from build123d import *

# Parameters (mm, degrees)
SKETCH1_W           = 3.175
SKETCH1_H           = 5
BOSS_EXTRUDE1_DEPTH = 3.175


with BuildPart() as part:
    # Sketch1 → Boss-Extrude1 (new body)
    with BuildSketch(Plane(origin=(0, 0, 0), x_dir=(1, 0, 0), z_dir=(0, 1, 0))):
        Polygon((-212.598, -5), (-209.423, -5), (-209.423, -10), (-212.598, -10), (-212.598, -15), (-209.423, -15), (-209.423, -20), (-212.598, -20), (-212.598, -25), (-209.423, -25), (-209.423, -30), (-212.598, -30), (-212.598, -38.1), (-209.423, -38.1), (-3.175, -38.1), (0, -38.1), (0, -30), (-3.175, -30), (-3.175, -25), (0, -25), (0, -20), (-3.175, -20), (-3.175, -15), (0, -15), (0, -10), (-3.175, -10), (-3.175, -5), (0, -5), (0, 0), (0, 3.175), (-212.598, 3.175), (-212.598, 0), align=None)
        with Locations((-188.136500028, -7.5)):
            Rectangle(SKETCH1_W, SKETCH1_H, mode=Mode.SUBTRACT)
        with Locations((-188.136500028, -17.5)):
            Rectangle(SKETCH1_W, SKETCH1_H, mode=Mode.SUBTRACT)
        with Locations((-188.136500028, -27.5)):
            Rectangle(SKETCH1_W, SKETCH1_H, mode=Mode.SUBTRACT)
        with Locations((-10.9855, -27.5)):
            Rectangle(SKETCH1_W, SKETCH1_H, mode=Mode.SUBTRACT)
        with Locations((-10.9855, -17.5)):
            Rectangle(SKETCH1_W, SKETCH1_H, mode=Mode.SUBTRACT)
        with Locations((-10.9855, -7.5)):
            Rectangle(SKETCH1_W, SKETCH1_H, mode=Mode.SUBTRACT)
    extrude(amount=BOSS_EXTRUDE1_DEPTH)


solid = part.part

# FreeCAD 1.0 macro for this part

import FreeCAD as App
import Part
import Sketcher

V = App.Vector

doc = App.newDocument("Part")
body = doc.addObject("PartDesign::Body", "Body")

# Sketch on XZ plane
sketch1 = body.newObject("Sketcher::SketchObject", "Sketch")
sketch1.AttachmentSupport = (doc.getObject("XZ_Plane"), [""])
sketch1.MapMode = "FlatFace"
sketch1.addGeometry([
    Part.LineSegment(V(-212.598, 5, 0), V(-209.423, 5, 0)),  # 0
    Part.LineSegment(V(-209.423, 5, 0), V(-209.423, 10, 0)),  # 1
    Part.LineSegment(V(-209.423, 10, 0), V(-212.598, 10, 0)),  # 2
    Part.LineSegment(V(-212.598, 10, 0), V(-212.598, 15, 0)),  # 3
    Part.LineSegment(V(-212.598, 15, 0), V(-209.423, 15, 0)),  # 4
    Part.LineSegment(V(-209.423, 15, 0), V(-209.423, 20, 0)),  # 5
    Part.LineSegment(V(-209.423, 20, 0), V(-212.598, 20, 0)),  # 6
    Part.LineSegment(V(-212.598, 20, 0), V(-212.598, 25, 0)),  # 7
    Part.LineSegment(V(-212.598, 25, 0), V(-209.423, 25, 0)),  # 8
    Part.LineSegment(V(-209.423, 25, 0), V(-209.423, 30, 0)),  # 9
    Part.LineSegment(V(-209.423, 30, 0), V(-212.598, 30, 0)),  # 10
    Part.LineSegment(V(-212.598, 30, 0), V(-212.598, 38.1, 0)),  # 11
    Part.LineSegment(V(-212.598, 38.1, 0), V(0, 38.1, 0)),  # 12
    Part.LineSegment(V(0, 38.1, 0), V(0, 30, 0)),  # 13
    Part.LineSegment(V(0, 30, 0), V(-3.175, 30, 0)),  # 14
    Part.LineSegment(V(-3.175, 30, 0), V(-3.175, 25, 0)),  # 15
    Part.LineSegment(V(-3.175, 25, 0), V(0, 25, 0)),  # 16
    Part.LineSegment(V(0, 25, 0), V(0, 20, 0)),  # 17
    Part.LineSegment(V(0, 20, 0), V(-3.175, 20, 0)),  # 18
    Part.LineSegment(V(-3.175, 20, 0), V(-3.175, 15, 0)),  # 19
    Part.LineSegment(V(-3.175, 15, 0), V(0, 15, 0)),  # 20
    Part.LineSegment(V(0, 15, 0), V(0, 10, 0)),  # 21
    Part.LineSegment(V(0, 10, 0), V(-3.175, 10, 0)),  # 22
    Part.LineSegment(V(-3.175, 10, 0), V(-3.175, 5, 0)),  # 23
    Part.LineSegment(V(-3.175, 5, 0), V(0, 5, 0)),  # 24
    Part.LineSegment(V(0, 5, 0), V(0, -3.175, 0)),  # 25
    Part.LineSegment(V(0, -3.175, 0), V(-212.598, -3.175, 0)),  # 26
    Part.LineSegment(V(-212.598, -3.175, 0), V(-212.598, 5, 0)),  # 27
    Part.LineSegment(V(-186.549, 30, 0), V(-189.724, 30, 0)),  # 28
    Part.LineSegment(V(-189.724, 30, 0), V(-189.724, 25, 0)),  # 29
    Part.LineSegment(V(-189.724, 25, 0), V(-186.549, 25, 0)),  # 30
    Part.LineSegment(V(-186.549, 25, 0), V(-186.549, 30, 0)),  # 31
    Part.LineSegment(V(-9.398, 30, 0), V(-12.573, 30, 0)),  # 32
    Part.LineSegment(V(-12.573, 30, 0), V(-12.573, 25, 0)),  # 33
    Part.LineSegment(V(-12.573, 25, 0), V(-9.398, 25, 0)),  # 34
    Part.LineSegment(V(-9.398, 25, 0), V(-9.398, 30, 0)),  # 35
    Part.LineSegment(V(-186.549, 20, 0), V(-189.724, 20, 0)),  # 36
    Part.LineSegment(V(-189.724, 20, 0), V(-189.724, 15, 0)),  # 37
    Part.LineSegment(V(-189.724, 15, 0), V(-186.549, 15, 0)),  # 38
    Part.LineSegment(V(-186.549, 15, 0), V(-186.549, 20, 0)),  # 39
    Part.LineSegment(V(-186.549, 10, 0), V(-189.724, 10, 0)),  # 40
    Part.LineSegment(V(-189.724, 10, 0), V(-189.724, 5, 0)),  # 41
    Part.LineSegment(V(-189.724, 5, 0), V(-186.549, 5, 0)),  # 42
    Part.LineSegment(V(-186.549, 5, 0), V(-186.549, 10, 0)),  # 43
    Part.LineSegment(V(-9.398, 20, 0), V(-12.573, 20, 0)),  # 44
    Part.LineSegment(V(-12.573, 20, 0), V(-12.573, 15, 0)),  # 45
    Part.LineSegment(V(-12.573, 15, 0), V(-9.398, 15, 0)),  # 46
    Part.LineSegment(V(-9.398, 15, 0), V(-9.398, 20, 0)),  # 47
    Part.LineSegment(V(-9.398, 10, 0), V(-12.573, 10, 0)),  # 48
    Part.LineSegment(V(-12.573, 10, 0), V(-12.573, 5, 0)),  # 49
    Part.LineSegment(V(-12.573, 5, 0), V(-9.398, 5, 0)),  # 50
    Part.LineSegment(V(-9.398, 5, 0), V(-9.398, 10, 0)),  # 51
], False)
sketch1.addConstraint([
    Sketcher.Constraint("Coincident", 0, 2, 1, 1),
    Sketcher.Constraint("Coincident", 1, 2, 2, 1),
    Sketcher.Constraint("Coincident", 2, 2, 3, 1),
    Sketcher.Constraint("Coincident", 3, 2, 4, 1),
    Sketcher.Constraint("Coincident", 4, 2, 5, 1),
    Sketcher.Constraint("Coincident", 5, 2, 6, 1),
    Sketcher.Constraint("Coincident", 6, 2, 7, 1),
    Sketcher.Constraint("Coincident", 7, 2, 8, 1),
    Sketcher.Constraint("Coincident", 8, 2, 9, 1),
    Sketcher.Constraint("Coincident", 9, 2, 10, 1),
    Sketcher.Constraint("Coincident", 10, 2, 11, 1),
    Sketcher.Constraint("Coincident", 11, 2, 12, 1),
    Sketcher.Constraint("Coincident", 12, 2, 13, 1),
    Sketcher.Constraint("Coincident", 13, 2, 14, 1),
    Sketcher.Constraint("Coincident", 14, 2, 15, 1),
    Sketcher.Constraint("Coincident", 15, 2, 16, 1),
    Sketcher.Constraint("Coincident", 16, 2, 17, 1),
    Sketcher.Constraint("Coincident", 17, 2, 18, 1),
    Sketcher.Constraint("Coincident", 18, 2, 19, 1),
    Sketcher.Constraint("Coincident", 19, 2, 20, 1),
    Sketcher.Constraint("Coincident", 20, 2, 21, 1),
    Sketcher.Constraint("Coincident", 21, 2, 22, 1),
    Sketcher.Constraint("Coincident", 22, 2, 23, 1),
    Sketcher.Constraint("Coincident", 23, 2, 24, 1),
    Sketcher.Constraint("Coincident", 24, 2, 25, 1),
    Sketcher.Constraint("Coincident", 25, 2, 26, 1),
    Sketcher.Constraint("Coincident", 26, 2, 27, 1),
    Sketcher.Constraint("Coincident", 27, 2, 0, 1),
    Sketcher.Constraint("Coincident", 28, 2, 29, 1),
    Sketcher.Constraint("Coincident", 29, 2, 30, 1),
    Sketcher.Constraint("Coincident", 30, 2, 31, 1),
    Sketcher.Constraint("Coincident", 31, 2, 28, 1),
    Sketcher.Constraint("Coincident", 32, 2, 33, 1),
    Sketcher.Constraint("Coincident", 33, 2, 34, 1),
    Sketcher.Constraint("Coincident", 34, 2, 35, 1),
    Sketcher.Constraint("Coincident", 35, 2, 32, 1),
    Sketcher.Constraint("Coincident", 36, 2, 37, 1),
    Sketcher.Constraint("Coincident", 37, 2, 38, 1),
    Sketcher.Constraint("Coincident", 38, 2, 39, 1),
    Sketcher.Constraint("Coincident", 39, 2, 36, 1),
    Sketcher.Constraint("Coincident", 40, 2, 41, 1),
    Sketcher.Constraint("Coincident", 41, 2, 42, 1),
    Sketcher.Constraint("Coincident", 42, 2, 43, 1),
    Sketcher.Constraint("Coincident", 43, 2, 40, 1),
    Sketcher.Constraint("Coincident", 44, 2, 45, 1),
    Sketcher.Constraint("Coincident", 45, 2, 46, 1),
    Sketcher.Constraint("Coincident", 46, 2, 47, 1),
    Sketcher.Constraint("Coincident", 47, 2, 44, 1),
    Sketcher.Constraint("Coincident", 48, 2, 49, 1),
    Sketcher.Constraint("Coincident", 49, 2, 50, 1),
    Sketcher.Constraint("Coincident", 50, 2, 51, 1),
    Sketcher.Constraint("Coincident", 51, 2, 48, 1),
    Sketcher.Constraint("Horizontal", 0),
    Sketcher.Constraint("Vertical", 1),
    Sketcher.Constraint("Horizontal", 2),
    Sketcher.Constraint("Vertical", 3),
    Sketcher.Constraint("Horizontal", 4),
    Sketcher.Constraint("Vertical", 5),
    Sketcher.Constraint("Horizontal", 6),
    Sketcher.Constraint("Vertical", 7),
    Sketcher.Constraint("Horizontal", 8),
    Sketcher.Constraint("Vertical", 9),
    Sketcher.Constraint("Horizontal", 10),
    Sketcher.Constraint("Vertical", 11),
    Sketcher.Constraint("Horizontal", 12),
    Sketcher.Constraint("Vertical", 13),
    Sketcher.Constraint("Horizontal", 14),
    Sketcher.Constraint("Vertical", 15),
    Sketcher.Constraint("Horizontal", 16),
    Sketcher.Constraint("Vertical", 17),
    Sketcher.Constraint("Horizontal", 18),
    Sketcher.Constraint("Vertical", 19),
    Sketcher.Constraint("Horizontal", 20),
    Sketcher.Constraint("Vertical", 21),
    Sketcher.Constraint("Horizontal", 22),
    Sketcher.Constraint("Vertical", 23),
    Sketcher.Constraint("Horizontal", 24),
    Sketcher.Constraint("Vertical", 25),
    Sketcher.Constraint("Horizontal", 26),
    Sketcher.Constraint("Vertical", 27),
    Sketcher.Constraint("Horizontal", 28),
    Sketcher.Constraint("Vertical", 29),
    Sketcher.Constraint("Horizontal", 30),
    Sketcher.Constraint("Vertical", 31),
    Sketcher.Constraint("Horizontal", 32),
    Sketcher.Constraint("Vertical", 33),
    Sketcher.Constraint("Horizontal", 34),
    Sketcher.Constraint("Vertical", 35),
    Sketcher.Constraint("Horizontal", 36),
    Sketcher.Constraint("Vertical", 37),
    Sketcher.Constraint("Horizontal", 38),
    Sketcher.Constraint("Vertical", 39),
    Sketcher.Constraint("Horizontal", 40),
    Sketcher.Constraint("Vertical", 41),
    Sketcher.Constraint("Horizontal", 42),
    Sketcher.Constraint("Vertical", 43),
    Sketcher.Constraint("Horizontal", 44),
    Sketcher.Constraint("Vertical", 45),
    Sketcher.Constraint("Horizontal", 46),
    Sketcher.Constraint("Vertical", 47),
    Sketcher.Constraint("Horizontal", 48),
    Sketcher.Constraint("Vertical", 49),
    Sketcher.Constraint("Horizontal", 50),
    Sketcher.Constraint("Vertical", 51),
    Sketcher.Constraint("PointOnObject", 12, 2, -2),
    Sketcher.Constraint("PointOnObject", 16, 2, -2),
    Sketcher.Constraint("PointOnObject", 20, 2, -2),
    Sketcher.Constraint("PointOnObject", 24, 2, -2),
    Sketcher.Constraint("Horizontal", 10, 2, 13, 2),
    Sketcher.Constraint("Horizontal", 8, 2, 15, 2),
    Sketcher.Constraint("Horizontal", 6, 2, 17, 2),
    Sketcher.Constraint("Horizontal", 4, 2, 19, 2),
    Sketcher.Constraint("Horizontal", 2, 2, 21, 2),
    Sketcher.Constraint("Horizontal", 0, 2, 23, 2),
    Sketcher.Constraint("Horizontal", 14, 2, 28, 2),
    Sketcher.Constraint("Horizontal", 16, 2, 29, 2),
    Sketcher.Constraint("Horizontal", 31, 2, 32, 2),
    Sketcher.Constraint("Horizontal", 30, 2, 33, 2),
    Sketcher.Constraint("Horizontal", 18, 2, 36, 2),
    Sketcher.Constraint("Horizontal", 20, 2, 37, 2),
    Sketcher.Constraint("Horizontal", 22, 2, 40, 2),
    Sketcher.Constraint("Horizontal", 27, 2, 41, 2),
    Sketcher.Constraint("Horizontal", 39, 2, 44, 2),
    Sketcher.Constraint("Horizontal", 38, 2, 45, 2),
    Sketcher.Constraint("Horizontal", 43, 2, 48, 2),
    Sketcher.Constraint("Horizontal", 42, 2, 49, 2),
    Sketcher.Constraint("Vertical", 1, 2, 4, 2),
    Sketcher.Constraint("Vertical", 3, 2, 6, 2),
    Sketcher.Constraint("Vertical", 5, 2, 8, 2),
    Sketcher.Constraint("Vertical", 7, 2, 10, 2),
    Sketcher.Constraint("Vertical", 15, 2, 18, 2),
    Sketcher.Constraint("Vertical", 19, 2, 22, 2),
    Sketcher.Constraint("Vertical", 11, 2, 26, 2),
    Sketcher.Constraint("Vertical", 29, 2, 36, 2),
    Sketcher.Constraint("Vertical", 31, 2, 38, 2),
    Sketcher.Constraint("Vertical", 37, 2, 40, 2),
    Sketcher.Constraint("Vertical", 39, 2, 42, 2),
    Sketcher.Constraint("Vertical", 33, 2, 44, 2),
    Sketcher.Constraint("Vertical", 35, 2, 46, 2),
    Sketcher.Constraint("Vertical", 45, 2, 48, 2),
    Sketcher.Constraint("Vertical", 47, 2, 50, 2),
    Sketcher.Constraint("Equal", 10, 14),
    Sketcher.Constraint("Equal", 24, 28),
    Sketcher.Constraint("Equal", 30, 32),
    Sketcher.Constraint("Equal", 1, 3),
    Sketcher.Constraint("Equal", 3, 5),
    Sketcher.Constraint("Equal", 5, 7),
    Sketcher.Constraint("Equal", 7, 9),
    Sketcher.Constraint("DistanceY", 1, 1, 1, 2, 5.0),
    Sketcher.Constraint("DistanceY", 11, 1, 11, 2, 8.1),
    Sketcher.Constraint("DistanceY", -1, 1, 0, 2, 5.0),
    Sketcher.Constraint("DistanceX", 0, 1, 0, 2, 3.175),
    Sketcher.Constraint("DistanceX", 12, 1, 12, 2, 212.598),
    Sketcher.Constraint("DistanceY", 25, 2, 25, 1, 8.175),
    Sketcher.Constraint("DistanceX", 28, 2, -1, 1, 189.724),
    Sketcher.Constraint("DistanceX", 32, 2, -1, 1, 12.573),
])
pad1 = body.newObject("PartDesign::Pad", "Pad")
pad1.Profile = sketch1
pad1.Length = 3.175
pad1.Reversed = True

doc.recompute()
